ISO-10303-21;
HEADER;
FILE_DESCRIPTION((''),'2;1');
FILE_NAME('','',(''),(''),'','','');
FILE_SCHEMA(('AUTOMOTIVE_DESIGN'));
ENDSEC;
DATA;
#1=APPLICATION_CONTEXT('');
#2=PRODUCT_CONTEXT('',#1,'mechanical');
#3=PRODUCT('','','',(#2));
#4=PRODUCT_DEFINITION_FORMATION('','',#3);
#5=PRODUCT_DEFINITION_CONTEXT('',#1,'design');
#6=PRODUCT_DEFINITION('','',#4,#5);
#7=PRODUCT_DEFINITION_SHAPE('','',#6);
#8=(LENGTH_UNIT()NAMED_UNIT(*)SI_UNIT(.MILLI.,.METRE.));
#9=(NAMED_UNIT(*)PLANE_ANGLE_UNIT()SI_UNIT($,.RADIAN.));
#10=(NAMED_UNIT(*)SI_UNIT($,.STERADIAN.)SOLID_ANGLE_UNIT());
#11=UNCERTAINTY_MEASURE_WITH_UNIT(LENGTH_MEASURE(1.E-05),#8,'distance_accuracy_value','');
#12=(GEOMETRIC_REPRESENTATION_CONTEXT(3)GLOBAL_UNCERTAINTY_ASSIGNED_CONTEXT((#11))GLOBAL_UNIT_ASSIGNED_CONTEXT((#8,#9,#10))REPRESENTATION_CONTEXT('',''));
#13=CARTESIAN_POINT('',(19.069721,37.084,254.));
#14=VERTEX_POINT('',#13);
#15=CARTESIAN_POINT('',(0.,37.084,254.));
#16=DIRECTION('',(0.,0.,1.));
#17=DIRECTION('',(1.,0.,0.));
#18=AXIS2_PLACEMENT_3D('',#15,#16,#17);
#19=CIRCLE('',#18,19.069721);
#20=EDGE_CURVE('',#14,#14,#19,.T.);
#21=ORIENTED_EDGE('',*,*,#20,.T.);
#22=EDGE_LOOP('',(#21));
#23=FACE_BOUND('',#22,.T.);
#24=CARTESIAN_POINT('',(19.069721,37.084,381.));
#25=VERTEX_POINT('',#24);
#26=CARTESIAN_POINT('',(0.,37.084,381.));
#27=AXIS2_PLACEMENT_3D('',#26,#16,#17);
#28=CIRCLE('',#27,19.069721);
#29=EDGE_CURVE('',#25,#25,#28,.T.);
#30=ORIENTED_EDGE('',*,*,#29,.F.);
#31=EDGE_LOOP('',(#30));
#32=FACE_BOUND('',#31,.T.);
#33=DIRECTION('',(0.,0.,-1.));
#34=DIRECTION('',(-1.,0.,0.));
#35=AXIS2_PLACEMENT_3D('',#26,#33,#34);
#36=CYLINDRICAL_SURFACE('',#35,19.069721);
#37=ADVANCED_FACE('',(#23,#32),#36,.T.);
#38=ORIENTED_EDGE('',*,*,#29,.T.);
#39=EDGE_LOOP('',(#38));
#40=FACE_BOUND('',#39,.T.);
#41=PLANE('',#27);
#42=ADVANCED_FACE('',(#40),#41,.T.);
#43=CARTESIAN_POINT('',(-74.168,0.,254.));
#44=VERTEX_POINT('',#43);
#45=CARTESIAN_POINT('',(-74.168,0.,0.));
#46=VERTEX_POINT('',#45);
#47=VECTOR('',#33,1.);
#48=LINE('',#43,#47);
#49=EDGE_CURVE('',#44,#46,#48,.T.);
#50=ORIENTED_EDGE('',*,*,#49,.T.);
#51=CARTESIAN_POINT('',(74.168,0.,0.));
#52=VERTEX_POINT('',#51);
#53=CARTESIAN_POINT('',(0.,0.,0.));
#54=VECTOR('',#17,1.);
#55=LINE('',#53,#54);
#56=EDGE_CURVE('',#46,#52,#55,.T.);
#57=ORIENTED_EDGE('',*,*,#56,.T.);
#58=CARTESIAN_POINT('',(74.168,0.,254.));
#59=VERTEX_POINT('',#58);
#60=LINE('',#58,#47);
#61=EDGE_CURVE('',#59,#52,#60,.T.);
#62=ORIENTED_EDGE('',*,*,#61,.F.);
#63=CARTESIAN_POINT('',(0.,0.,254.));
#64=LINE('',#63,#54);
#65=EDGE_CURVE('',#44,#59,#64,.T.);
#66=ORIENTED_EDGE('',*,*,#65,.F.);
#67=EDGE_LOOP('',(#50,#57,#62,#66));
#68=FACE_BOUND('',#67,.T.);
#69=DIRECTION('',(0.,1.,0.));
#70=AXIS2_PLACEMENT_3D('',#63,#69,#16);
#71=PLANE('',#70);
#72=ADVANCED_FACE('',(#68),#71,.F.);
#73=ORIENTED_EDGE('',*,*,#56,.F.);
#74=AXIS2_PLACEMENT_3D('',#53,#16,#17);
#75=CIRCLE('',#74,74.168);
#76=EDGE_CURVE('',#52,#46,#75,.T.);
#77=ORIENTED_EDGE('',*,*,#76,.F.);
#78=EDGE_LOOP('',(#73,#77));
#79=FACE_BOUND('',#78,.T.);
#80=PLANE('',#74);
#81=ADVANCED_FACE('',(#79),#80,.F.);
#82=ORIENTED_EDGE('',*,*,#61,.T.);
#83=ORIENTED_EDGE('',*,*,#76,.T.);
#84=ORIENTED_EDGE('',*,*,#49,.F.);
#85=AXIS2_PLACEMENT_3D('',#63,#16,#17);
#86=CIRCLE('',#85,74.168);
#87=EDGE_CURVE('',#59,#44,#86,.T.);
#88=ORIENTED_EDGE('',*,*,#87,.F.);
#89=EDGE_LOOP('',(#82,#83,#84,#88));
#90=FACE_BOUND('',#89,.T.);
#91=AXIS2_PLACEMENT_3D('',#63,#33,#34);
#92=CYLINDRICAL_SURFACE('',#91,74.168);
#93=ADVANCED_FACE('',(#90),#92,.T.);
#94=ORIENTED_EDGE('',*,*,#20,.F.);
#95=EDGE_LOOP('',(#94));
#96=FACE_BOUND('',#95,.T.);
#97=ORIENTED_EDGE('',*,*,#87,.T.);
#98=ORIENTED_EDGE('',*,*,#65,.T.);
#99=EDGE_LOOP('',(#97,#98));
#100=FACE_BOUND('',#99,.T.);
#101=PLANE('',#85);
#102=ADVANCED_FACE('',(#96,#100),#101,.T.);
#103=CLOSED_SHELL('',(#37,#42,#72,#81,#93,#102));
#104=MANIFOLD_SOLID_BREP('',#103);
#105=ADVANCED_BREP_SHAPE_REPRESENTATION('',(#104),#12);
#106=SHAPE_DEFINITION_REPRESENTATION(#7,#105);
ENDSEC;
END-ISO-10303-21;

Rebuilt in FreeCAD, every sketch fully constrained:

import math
import FreeCAD as App
import Part
import Sketcher

V = App.Vector
Q = App.Units.Quantity

doc = App.newDocument("Part")
body = doc.addObject("PartDesign::Body", "Body")

# Sketch on XY plane
sketch1 = body.newObject("Sketcher::SketchObject", "Sketch")
sketch1.AttachmentSupport = (doc.getObject("XY_Plane"), [""])
sketch1.MapMode = "FlatFace"
sketch1.addGeometry(Part.ArcOfCircle(Part.Circle(V(0, 0, 0), V(0, 0, 1), 74.168), math.radians(0), math.radians(180)), False)
sketch1.addGeometry(Part.LineSegment(V(-74.168, 0, 0), V(74.168, 0, 0)), False)
sketch1.addConstraint(Sketcher.Constraint("Coincident", 0, 1, 1, 2))
sketch1.addConstraint(Sketcher.Constraint("Coincident", 1, 1, 0, 2))
sketch1.addConstraint(Sketcher.Constraint("Horizontal", 1))
sketch1.addConstraint(Sketcher.Constraint("Coincident", 0, 3, -1, 1))
sketch1.addConstraint(Sketcher.Constraint("PointOnObject", 0, 1, -1))
sketch1.addConstraint(Sketcher.Constraint("Radius", 0, Q("2.92 in")))
pad1 = body.newObject("PartDesign::Pad", "Pad")
pad1.Profile = sketch1
pad1.Length = Q("10 in")

# Sketch on XY plane
sketch2 = body.newObject("Sketcher::SketchObject", "Sketch001")
sketch2.AttachmentSupport = (doc.getObject("XY_Plane"), [""])
sketch2.MapMode = "FlatFace"
sketch2.AttachmentOffset = App.Placement(V(0, 0, 10 * 25.4), App.Rotation())
sketch2.addGeometry(Part.Circle(V(0, 37.084, 0), V(0, 0, 1), 19.069721), False)
sketch2.addConstraint(Sketcher.Constraint("PointOnObject", 0, 3, -2))
sketch2.addConstraint(Sketcher.Constraint("DistanceY", -1, 1, 0, 3, Q("1.46 in")))
sketch2.addConstraint(Sketcher.Constraint("Diameter", 0, 38.139442))
pad2 = body.newObject("PartDesign::Pad", "Pad001")
pad2.Profile = sketch2
pad2.Length = Q("5 in")

doc.recompute()
